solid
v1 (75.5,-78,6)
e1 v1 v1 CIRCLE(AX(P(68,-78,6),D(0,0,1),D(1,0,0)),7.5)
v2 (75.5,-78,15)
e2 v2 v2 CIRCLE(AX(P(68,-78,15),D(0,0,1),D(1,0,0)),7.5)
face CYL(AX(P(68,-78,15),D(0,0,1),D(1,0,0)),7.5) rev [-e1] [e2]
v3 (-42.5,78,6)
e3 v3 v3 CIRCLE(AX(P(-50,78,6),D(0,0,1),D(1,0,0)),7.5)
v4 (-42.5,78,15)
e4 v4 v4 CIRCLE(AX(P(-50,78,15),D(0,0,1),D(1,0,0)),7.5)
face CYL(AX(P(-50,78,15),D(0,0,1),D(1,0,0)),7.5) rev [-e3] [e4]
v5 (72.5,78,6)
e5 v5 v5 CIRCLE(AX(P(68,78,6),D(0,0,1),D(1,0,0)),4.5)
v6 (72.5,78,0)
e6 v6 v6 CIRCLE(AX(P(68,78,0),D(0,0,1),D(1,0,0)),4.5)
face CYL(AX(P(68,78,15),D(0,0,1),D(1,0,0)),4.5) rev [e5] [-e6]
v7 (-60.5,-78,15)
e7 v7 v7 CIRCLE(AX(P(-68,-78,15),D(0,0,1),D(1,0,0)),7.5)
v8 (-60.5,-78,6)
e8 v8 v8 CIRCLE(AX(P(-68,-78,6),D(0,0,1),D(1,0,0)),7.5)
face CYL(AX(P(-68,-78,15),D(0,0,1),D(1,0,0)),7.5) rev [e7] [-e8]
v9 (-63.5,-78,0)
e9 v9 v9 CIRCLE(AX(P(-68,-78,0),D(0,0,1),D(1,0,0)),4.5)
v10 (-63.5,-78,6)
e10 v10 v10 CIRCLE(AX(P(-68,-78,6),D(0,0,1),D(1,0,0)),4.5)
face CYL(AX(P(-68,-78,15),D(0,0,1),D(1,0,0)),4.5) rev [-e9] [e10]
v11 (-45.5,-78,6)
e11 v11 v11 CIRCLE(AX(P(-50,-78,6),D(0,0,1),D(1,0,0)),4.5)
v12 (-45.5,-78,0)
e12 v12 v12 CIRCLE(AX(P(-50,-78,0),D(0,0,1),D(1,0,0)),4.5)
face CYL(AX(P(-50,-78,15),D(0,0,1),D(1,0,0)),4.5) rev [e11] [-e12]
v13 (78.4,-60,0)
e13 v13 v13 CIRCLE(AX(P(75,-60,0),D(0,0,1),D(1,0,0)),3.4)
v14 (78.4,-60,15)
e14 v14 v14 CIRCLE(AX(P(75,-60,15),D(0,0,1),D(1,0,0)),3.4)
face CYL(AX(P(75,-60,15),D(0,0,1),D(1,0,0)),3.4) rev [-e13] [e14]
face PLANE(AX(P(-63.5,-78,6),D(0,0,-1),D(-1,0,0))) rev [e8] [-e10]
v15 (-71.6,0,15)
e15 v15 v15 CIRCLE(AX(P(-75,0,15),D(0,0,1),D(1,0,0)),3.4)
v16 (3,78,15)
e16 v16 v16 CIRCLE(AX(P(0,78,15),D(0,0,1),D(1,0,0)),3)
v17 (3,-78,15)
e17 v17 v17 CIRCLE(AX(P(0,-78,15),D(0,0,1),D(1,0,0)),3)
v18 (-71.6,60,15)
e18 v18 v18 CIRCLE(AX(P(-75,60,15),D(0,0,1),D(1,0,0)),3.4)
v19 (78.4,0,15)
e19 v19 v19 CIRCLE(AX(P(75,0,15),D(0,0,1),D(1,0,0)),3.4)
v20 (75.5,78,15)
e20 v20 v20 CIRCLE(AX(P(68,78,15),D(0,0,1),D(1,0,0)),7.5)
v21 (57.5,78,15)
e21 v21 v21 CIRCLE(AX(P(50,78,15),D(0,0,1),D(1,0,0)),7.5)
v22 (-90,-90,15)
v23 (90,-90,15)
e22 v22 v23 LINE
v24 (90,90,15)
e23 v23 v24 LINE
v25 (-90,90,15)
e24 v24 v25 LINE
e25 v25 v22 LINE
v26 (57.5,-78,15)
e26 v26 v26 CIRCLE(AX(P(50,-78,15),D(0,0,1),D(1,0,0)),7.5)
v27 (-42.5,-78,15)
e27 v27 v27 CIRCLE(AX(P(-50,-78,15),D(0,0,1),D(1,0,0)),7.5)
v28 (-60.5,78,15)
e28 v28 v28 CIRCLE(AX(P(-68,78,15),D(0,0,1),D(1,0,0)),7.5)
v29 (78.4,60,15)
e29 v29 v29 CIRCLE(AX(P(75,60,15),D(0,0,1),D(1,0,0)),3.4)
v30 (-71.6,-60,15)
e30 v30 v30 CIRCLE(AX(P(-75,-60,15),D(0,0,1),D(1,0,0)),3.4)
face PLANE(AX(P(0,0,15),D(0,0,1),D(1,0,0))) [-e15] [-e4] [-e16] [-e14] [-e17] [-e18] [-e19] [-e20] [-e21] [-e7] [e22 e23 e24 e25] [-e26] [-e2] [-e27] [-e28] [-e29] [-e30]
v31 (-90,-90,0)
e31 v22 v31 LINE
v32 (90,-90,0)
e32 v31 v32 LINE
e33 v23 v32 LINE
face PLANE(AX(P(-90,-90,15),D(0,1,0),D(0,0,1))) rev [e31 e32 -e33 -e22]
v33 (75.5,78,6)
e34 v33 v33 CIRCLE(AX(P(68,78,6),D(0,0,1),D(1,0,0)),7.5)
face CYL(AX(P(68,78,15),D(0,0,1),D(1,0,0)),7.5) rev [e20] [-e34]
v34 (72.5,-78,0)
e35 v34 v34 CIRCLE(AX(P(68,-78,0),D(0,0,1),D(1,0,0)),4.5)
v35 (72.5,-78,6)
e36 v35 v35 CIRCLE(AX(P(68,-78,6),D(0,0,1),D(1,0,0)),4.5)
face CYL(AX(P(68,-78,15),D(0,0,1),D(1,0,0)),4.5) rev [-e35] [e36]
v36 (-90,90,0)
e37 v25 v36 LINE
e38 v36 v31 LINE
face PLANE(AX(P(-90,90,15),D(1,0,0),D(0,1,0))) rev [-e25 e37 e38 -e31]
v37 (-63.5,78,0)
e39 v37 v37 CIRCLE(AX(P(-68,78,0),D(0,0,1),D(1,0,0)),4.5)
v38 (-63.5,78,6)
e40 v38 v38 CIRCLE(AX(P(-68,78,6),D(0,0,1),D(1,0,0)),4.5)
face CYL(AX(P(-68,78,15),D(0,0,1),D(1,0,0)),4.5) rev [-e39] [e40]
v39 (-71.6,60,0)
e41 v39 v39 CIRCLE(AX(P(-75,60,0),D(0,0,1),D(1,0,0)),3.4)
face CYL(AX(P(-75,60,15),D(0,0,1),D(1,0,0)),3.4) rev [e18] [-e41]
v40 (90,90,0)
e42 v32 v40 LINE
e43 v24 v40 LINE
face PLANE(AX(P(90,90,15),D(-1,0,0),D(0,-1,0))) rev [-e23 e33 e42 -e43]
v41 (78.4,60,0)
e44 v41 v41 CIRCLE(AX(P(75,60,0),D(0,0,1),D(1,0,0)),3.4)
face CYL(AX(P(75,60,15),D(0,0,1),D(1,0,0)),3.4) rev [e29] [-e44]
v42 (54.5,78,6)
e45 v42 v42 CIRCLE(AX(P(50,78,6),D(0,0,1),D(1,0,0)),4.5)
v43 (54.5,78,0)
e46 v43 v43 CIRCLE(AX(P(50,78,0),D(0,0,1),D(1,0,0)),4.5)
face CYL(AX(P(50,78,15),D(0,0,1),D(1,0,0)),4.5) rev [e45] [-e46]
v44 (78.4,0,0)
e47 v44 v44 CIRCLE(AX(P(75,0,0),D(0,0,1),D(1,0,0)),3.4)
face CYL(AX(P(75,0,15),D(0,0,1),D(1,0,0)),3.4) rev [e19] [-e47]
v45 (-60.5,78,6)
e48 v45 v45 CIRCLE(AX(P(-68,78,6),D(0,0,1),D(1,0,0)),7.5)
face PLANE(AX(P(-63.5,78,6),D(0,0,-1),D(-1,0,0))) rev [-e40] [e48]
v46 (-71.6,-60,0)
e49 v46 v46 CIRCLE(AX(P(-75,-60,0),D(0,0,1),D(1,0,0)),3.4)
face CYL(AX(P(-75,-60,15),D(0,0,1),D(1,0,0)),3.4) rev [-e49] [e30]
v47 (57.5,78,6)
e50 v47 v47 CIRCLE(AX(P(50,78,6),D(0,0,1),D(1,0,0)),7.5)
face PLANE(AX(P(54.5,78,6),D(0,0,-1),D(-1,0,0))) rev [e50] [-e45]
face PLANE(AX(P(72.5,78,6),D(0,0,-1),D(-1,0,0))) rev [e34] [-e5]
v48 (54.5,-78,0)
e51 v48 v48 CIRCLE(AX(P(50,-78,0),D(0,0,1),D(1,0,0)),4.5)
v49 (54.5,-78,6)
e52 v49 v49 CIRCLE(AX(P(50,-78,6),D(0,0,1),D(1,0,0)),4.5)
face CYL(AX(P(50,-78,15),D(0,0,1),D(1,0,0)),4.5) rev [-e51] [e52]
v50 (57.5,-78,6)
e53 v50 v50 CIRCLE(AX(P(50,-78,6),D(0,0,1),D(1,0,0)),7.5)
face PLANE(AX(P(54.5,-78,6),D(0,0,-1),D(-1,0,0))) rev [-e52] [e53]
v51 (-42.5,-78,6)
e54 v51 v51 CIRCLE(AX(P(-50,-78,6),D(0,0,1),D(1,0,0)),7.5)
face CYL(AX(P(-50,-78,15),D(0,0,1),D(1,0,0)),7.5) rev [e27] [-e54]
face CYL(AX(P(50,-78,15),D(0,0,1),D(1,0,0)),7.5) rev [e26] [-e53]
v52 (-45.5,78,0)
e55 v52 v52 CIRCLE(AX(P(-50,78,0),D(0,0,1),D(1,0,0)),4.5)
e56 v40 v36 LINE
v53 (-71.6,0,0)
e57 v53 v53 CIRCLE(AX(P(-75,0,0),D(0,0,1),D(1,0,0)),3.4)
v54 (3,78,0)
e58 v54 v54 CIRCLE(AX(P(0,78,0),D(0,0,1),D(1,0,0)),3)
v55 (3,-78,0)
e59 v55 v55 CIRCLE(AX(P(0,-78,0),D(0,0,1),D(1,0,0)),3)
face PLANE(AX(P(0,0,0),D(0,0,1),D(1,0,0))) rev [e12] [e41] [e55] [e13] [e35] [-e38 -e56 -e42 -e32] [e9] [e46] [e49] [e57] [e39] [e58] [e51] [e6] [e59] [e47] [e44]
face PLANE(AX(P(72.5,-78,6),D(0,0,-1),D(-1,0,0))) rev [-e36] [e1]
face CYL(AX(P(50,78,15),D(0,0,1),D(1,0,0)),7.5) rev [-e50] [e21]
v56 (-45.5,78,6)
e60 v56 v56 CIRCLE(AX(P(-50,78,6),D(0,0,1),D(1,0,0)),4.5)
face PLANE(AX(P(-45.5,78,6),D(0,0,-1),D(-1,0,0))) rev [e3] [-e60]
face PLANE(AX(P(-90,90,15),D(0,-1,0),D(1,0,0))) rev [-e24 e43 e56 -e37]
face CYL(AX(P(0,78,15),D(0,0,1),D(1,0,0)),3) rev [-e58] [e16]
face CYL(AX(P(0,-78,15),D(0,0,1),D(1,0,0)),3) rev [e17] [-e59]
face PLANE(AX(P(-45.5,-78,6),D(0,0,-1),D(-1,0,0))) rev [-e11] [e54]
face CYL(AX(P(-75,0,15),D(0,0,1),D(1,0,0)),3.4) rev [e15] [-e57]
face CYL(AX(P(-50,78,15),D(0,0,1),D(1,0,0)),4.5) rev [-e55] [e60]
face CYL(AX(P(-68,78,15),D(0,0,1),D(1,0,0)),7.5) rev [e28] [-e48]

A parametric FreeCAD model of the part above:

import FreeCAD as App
import Part
import Sketcher
Q = App.Units.Quantity


def add_polygon(sketch, points):
    """Adds a closed chain of lines whose ends are joined by coincident constraints."""
    first, n = sketch.GeometryCount, len(points)
    for a, b in zip(points, points[1:] + points[:1]):
        sketch.addGeometry(Part.LineSegment(App.Vector(*a, 0), App.Vector(*b, 0)), False)
    for i in range(n):
        sketch.addConstraint(Sketcher.Constraint("Coincident", first + i, 2, first + (i + 1) % n, 1))

doc = App.newDocument("Part")
body = doc.addObject("PartDesign::Body", "Body")

sketch1 = body.newObject("Sketcher::SketchObject", "Sketch")
sketch1.AttachmentSupport = (doc.getObject("XY_Plane"), [""])
sketch1.MapMode = "FlatFace"
add_polygon(sketch1, [(-90, 90), (-90, -90), (90, -90), (90, 90)])
sketch1.addConstraint([
    Sketcher.Constraint("Vertical", 0),
    Sketcher.Constraint("Horizontal", 1),
    Sketcher.Constraint("Vertical", 2),
    Sketcher.Constraint("Horizontal", 3),
    Sketcher.Constraint("Symmetric", 0, 2, 2, 2, -1, 1),
    Sketcher.Constraint("Equal", 3, 0),
    Sketcher.Constraint("DistanceX", 1, 1, 1, 2, Q("180 mm")),
])
pad1 = body.newObject("PartDesign::Pad", "Pad")
pad1.Profile = sketch1
pad1.Length = 15

sketch2 = body.newObject("Sketcher::SketchObject", "Sketch001")
sketch2.AttachmentSupport = (doc.getObject("XY_Plane"), [""])
sketch2.MapMode = "FlatFace"
sketch2.AttachmentOffset = App.Placement(App.Vector(0, 0, 15), App.Rotation())
sketch2.addGeometry([
    Part.Circle(App.Vector(-68, -78, 0), App.Vector(0, 0, 1), 4.5),
    Part.Circle(App.Vector(-50, -78, 0), App.Vector(0, 0, 1), 4.5),
    Part.Circle(App.Vector(50, -78, 0), App.Vector(0, 0, 1), 4.5),
    Part.Circle(App.Vector(68, -78, 0), App.Vector(0, 0, 1), 4.5),
    Part.Circle(App.Vector(68, 78, 0), App.Vector(0, 0, 1), 4.5),
    Part.Circle(App.Vector(50, 78, 0), App.Vector(0, 0, 1), 4.5),
    Part.Circle(App.Vector(-50, 78, 0), App.Vector(0, 0, 1), 4.5),
    Part.Circle(App.Vector(-68, 78, 0), App.Vector(0, 0, 1), 4.5),
], False)
sketch2.addConstraint([
    Sketcher.Constraint("Equal", 0, 1),
    Sketcher.Constraint("Equal", 1, 2),
    Sketcher.Constraint("Equal", 2, 3),
    Sketcher.Constraint("Equal", 3, 4),
    Sketcher.Constraint("Equal", 4, 5),
    Sketcher.Constraint("Equal", 5, 6),
    Sketcher.Constraint("Equal", 6, 7),
    Sketcher.Constraint("Symmetric", 0, 3, 4, 3, -1, 1),
    Sketcher.Constraint("Symmetric", 1, 3, 5, 3, -1, 1),
    Sketcher.Constraint("Symmetric", 2, 3, 6, 3, -1, 1),
    Sketcher.Constraint("Symmetric", 3, 3, 7, 3, -1, 1),
    Sketcher.Constraint("Symmetric", 1, 3, 2, 3, -2),
    Sketcher.Constraint("Symmetric", 0, 3, 3, 3, -2),
    Sketcher.Constraint("Horizontal", 0, 3, 1, 3),
    Sketcher.Constraint("Diameter", 0, Q("9 mm")),
    Sketcher.Constraint("DistanceX", 0, 3, -1, 1, Q("68 mm")),
    Sketcher.Constraint("DistanceY", 0, 3, -1, 1, Q("78 mm")),
    Sketcher.Constraint("DistanceX", 1, 3, -1, 1, Q("50 mm")),
])
doc.recompute()
hole = body.newObject("PartDesign::Hole", "Hole")
hole.Profile = sketch2
hole.ThreadType = "None"
hole.Diameter = 9
hole.DepthType = "ThroughAll"
hole.HoleCutType = "Counterbore"
hole.HoleCutDiameter = 15
hole.HoleCutDepth = 9

sketch3 = body.newObject("Sketcher::SketchObject", "Sketch002")
sketch3.AttachmentSupport = (doc.getObject("XY_Plane"), [""])
sketch3.MapMode = "FlatFace"
sketch3.AttachmentOffset = App.Placement(App.Vector(0, 0, 15), App.Rotation())
sketch3.addGeometry([
    Part.Circle(App.Vector(0, 78, 0), App.Vector(0, 0, 1), 3),
    Part.Circle(App.Vector(0, -78, 0), App.Vector(0, 0, 1), 3),
], False)
sketch3.addConstraint([
    Sketcher.Constraint("Equal", 0, 1),
    Sketcher.Constraint("Symmetric", 0, 3, 1, 3, -1, 1),
    Sketcher.Constraint("PointOnObject", 0, 3, -2),
    Sketcher.Constraint("Diameter", 0, Q("6 mm")),
    Sketcher.Constraint("DistanceY", -1, 1, 0, 3, Q("78 mm")),
])
doc.recompute()
hole2 = body.newObject("PartDesign::Hole", "Hole001")
hole2.Profile = sketch3
hole2.ThreadType = "None"
hole2.Diameter = 6
hole2.DepthType = "ThroughAll"

sketch4 = body.newObject("Sketcher::SketchObject", "Sketch003")
sketch4.AttachmentSupport = (doc.getObject("XY_Plane"), [""])
sketch4.MapMode = "FlatFace"
sketch4.AttachmentOffset = App.Placement(App.Vector(0, 0, 15), App.Rotation())
sketch4.addGeometry([
    Part.Circle(App.Vector(-75, 60, 0), App.Vector(0, 0, 1), 3.4),
    Part.Circle(App.Vector(-75, 0, 0), App.Vector(0, 0, 1), 3.4),
    Part.Circle(App.Vector(-75, -60, 0), App.Vector(0, 0, 1), 3.4),
    Part.Circle(App.Vector(75, -60, 0), App.Vector(0, 0, 1), 3.4),
    Part.Circle(App.Vector(75, 0, 0), App.Vector(0, 0, 1), 3.4),
    Part.Circle(App.Vector(75, 60, 0), App.Vector(0, 0, 1), 3.4),
], False)
sketch4.addConstraint([
    Sketcher.Constraint("Equal", 0, 1),
    Sketcher.Constraint("Equal", 1, 2),
    Sketcher.Constraint("Equal", 2, 3),
    Sketcher.Constraint("Equal", 3, 4),
    Sketcher.Constraint("Equal", 4, 5),
    Sketcher.Constraint("Symmetric", 0, 3, 3, 3, -1, 1),
    Sketcher.Constraint("Symmetric", 1, 3, 4, 3, -1, 1),
    Sketcher.Constraint("Symmetric", 2, 3, 5, 3, -1, 1),
    Sketcher.Constraint("Symmetric", 2, 3, 3, 3, -2),
    Sketcher.Constraint("PointOnObject", 1, 3, -1),
    Sketcher.Constraint("Vertical", 0, 3, 1, 3),
    Sketcher.Constraint("Diameter", 0, Q("6.8 mm")),
    Sketcher.Constraint("DistanceX", 0, 3, -1, 1, Q("75 mm")),
    Sketcher.Constraint("DistanceY", -1, 1, 0, 3, Q("60 mm")),
])
doc.recompute()
hole3 = body.newObject("PartDesign::Hole", "Hole002")
hole3.Profile = sketch4
hole3.ThreadType = "None"
hole3.Diameter = 6.8
hole3.DepthType = "Dimension"
hole3.Depth = 22.25
hole3.DrillPoint = "Angled"
hole3.DrillPointAngle = 118

doc.recompute()
